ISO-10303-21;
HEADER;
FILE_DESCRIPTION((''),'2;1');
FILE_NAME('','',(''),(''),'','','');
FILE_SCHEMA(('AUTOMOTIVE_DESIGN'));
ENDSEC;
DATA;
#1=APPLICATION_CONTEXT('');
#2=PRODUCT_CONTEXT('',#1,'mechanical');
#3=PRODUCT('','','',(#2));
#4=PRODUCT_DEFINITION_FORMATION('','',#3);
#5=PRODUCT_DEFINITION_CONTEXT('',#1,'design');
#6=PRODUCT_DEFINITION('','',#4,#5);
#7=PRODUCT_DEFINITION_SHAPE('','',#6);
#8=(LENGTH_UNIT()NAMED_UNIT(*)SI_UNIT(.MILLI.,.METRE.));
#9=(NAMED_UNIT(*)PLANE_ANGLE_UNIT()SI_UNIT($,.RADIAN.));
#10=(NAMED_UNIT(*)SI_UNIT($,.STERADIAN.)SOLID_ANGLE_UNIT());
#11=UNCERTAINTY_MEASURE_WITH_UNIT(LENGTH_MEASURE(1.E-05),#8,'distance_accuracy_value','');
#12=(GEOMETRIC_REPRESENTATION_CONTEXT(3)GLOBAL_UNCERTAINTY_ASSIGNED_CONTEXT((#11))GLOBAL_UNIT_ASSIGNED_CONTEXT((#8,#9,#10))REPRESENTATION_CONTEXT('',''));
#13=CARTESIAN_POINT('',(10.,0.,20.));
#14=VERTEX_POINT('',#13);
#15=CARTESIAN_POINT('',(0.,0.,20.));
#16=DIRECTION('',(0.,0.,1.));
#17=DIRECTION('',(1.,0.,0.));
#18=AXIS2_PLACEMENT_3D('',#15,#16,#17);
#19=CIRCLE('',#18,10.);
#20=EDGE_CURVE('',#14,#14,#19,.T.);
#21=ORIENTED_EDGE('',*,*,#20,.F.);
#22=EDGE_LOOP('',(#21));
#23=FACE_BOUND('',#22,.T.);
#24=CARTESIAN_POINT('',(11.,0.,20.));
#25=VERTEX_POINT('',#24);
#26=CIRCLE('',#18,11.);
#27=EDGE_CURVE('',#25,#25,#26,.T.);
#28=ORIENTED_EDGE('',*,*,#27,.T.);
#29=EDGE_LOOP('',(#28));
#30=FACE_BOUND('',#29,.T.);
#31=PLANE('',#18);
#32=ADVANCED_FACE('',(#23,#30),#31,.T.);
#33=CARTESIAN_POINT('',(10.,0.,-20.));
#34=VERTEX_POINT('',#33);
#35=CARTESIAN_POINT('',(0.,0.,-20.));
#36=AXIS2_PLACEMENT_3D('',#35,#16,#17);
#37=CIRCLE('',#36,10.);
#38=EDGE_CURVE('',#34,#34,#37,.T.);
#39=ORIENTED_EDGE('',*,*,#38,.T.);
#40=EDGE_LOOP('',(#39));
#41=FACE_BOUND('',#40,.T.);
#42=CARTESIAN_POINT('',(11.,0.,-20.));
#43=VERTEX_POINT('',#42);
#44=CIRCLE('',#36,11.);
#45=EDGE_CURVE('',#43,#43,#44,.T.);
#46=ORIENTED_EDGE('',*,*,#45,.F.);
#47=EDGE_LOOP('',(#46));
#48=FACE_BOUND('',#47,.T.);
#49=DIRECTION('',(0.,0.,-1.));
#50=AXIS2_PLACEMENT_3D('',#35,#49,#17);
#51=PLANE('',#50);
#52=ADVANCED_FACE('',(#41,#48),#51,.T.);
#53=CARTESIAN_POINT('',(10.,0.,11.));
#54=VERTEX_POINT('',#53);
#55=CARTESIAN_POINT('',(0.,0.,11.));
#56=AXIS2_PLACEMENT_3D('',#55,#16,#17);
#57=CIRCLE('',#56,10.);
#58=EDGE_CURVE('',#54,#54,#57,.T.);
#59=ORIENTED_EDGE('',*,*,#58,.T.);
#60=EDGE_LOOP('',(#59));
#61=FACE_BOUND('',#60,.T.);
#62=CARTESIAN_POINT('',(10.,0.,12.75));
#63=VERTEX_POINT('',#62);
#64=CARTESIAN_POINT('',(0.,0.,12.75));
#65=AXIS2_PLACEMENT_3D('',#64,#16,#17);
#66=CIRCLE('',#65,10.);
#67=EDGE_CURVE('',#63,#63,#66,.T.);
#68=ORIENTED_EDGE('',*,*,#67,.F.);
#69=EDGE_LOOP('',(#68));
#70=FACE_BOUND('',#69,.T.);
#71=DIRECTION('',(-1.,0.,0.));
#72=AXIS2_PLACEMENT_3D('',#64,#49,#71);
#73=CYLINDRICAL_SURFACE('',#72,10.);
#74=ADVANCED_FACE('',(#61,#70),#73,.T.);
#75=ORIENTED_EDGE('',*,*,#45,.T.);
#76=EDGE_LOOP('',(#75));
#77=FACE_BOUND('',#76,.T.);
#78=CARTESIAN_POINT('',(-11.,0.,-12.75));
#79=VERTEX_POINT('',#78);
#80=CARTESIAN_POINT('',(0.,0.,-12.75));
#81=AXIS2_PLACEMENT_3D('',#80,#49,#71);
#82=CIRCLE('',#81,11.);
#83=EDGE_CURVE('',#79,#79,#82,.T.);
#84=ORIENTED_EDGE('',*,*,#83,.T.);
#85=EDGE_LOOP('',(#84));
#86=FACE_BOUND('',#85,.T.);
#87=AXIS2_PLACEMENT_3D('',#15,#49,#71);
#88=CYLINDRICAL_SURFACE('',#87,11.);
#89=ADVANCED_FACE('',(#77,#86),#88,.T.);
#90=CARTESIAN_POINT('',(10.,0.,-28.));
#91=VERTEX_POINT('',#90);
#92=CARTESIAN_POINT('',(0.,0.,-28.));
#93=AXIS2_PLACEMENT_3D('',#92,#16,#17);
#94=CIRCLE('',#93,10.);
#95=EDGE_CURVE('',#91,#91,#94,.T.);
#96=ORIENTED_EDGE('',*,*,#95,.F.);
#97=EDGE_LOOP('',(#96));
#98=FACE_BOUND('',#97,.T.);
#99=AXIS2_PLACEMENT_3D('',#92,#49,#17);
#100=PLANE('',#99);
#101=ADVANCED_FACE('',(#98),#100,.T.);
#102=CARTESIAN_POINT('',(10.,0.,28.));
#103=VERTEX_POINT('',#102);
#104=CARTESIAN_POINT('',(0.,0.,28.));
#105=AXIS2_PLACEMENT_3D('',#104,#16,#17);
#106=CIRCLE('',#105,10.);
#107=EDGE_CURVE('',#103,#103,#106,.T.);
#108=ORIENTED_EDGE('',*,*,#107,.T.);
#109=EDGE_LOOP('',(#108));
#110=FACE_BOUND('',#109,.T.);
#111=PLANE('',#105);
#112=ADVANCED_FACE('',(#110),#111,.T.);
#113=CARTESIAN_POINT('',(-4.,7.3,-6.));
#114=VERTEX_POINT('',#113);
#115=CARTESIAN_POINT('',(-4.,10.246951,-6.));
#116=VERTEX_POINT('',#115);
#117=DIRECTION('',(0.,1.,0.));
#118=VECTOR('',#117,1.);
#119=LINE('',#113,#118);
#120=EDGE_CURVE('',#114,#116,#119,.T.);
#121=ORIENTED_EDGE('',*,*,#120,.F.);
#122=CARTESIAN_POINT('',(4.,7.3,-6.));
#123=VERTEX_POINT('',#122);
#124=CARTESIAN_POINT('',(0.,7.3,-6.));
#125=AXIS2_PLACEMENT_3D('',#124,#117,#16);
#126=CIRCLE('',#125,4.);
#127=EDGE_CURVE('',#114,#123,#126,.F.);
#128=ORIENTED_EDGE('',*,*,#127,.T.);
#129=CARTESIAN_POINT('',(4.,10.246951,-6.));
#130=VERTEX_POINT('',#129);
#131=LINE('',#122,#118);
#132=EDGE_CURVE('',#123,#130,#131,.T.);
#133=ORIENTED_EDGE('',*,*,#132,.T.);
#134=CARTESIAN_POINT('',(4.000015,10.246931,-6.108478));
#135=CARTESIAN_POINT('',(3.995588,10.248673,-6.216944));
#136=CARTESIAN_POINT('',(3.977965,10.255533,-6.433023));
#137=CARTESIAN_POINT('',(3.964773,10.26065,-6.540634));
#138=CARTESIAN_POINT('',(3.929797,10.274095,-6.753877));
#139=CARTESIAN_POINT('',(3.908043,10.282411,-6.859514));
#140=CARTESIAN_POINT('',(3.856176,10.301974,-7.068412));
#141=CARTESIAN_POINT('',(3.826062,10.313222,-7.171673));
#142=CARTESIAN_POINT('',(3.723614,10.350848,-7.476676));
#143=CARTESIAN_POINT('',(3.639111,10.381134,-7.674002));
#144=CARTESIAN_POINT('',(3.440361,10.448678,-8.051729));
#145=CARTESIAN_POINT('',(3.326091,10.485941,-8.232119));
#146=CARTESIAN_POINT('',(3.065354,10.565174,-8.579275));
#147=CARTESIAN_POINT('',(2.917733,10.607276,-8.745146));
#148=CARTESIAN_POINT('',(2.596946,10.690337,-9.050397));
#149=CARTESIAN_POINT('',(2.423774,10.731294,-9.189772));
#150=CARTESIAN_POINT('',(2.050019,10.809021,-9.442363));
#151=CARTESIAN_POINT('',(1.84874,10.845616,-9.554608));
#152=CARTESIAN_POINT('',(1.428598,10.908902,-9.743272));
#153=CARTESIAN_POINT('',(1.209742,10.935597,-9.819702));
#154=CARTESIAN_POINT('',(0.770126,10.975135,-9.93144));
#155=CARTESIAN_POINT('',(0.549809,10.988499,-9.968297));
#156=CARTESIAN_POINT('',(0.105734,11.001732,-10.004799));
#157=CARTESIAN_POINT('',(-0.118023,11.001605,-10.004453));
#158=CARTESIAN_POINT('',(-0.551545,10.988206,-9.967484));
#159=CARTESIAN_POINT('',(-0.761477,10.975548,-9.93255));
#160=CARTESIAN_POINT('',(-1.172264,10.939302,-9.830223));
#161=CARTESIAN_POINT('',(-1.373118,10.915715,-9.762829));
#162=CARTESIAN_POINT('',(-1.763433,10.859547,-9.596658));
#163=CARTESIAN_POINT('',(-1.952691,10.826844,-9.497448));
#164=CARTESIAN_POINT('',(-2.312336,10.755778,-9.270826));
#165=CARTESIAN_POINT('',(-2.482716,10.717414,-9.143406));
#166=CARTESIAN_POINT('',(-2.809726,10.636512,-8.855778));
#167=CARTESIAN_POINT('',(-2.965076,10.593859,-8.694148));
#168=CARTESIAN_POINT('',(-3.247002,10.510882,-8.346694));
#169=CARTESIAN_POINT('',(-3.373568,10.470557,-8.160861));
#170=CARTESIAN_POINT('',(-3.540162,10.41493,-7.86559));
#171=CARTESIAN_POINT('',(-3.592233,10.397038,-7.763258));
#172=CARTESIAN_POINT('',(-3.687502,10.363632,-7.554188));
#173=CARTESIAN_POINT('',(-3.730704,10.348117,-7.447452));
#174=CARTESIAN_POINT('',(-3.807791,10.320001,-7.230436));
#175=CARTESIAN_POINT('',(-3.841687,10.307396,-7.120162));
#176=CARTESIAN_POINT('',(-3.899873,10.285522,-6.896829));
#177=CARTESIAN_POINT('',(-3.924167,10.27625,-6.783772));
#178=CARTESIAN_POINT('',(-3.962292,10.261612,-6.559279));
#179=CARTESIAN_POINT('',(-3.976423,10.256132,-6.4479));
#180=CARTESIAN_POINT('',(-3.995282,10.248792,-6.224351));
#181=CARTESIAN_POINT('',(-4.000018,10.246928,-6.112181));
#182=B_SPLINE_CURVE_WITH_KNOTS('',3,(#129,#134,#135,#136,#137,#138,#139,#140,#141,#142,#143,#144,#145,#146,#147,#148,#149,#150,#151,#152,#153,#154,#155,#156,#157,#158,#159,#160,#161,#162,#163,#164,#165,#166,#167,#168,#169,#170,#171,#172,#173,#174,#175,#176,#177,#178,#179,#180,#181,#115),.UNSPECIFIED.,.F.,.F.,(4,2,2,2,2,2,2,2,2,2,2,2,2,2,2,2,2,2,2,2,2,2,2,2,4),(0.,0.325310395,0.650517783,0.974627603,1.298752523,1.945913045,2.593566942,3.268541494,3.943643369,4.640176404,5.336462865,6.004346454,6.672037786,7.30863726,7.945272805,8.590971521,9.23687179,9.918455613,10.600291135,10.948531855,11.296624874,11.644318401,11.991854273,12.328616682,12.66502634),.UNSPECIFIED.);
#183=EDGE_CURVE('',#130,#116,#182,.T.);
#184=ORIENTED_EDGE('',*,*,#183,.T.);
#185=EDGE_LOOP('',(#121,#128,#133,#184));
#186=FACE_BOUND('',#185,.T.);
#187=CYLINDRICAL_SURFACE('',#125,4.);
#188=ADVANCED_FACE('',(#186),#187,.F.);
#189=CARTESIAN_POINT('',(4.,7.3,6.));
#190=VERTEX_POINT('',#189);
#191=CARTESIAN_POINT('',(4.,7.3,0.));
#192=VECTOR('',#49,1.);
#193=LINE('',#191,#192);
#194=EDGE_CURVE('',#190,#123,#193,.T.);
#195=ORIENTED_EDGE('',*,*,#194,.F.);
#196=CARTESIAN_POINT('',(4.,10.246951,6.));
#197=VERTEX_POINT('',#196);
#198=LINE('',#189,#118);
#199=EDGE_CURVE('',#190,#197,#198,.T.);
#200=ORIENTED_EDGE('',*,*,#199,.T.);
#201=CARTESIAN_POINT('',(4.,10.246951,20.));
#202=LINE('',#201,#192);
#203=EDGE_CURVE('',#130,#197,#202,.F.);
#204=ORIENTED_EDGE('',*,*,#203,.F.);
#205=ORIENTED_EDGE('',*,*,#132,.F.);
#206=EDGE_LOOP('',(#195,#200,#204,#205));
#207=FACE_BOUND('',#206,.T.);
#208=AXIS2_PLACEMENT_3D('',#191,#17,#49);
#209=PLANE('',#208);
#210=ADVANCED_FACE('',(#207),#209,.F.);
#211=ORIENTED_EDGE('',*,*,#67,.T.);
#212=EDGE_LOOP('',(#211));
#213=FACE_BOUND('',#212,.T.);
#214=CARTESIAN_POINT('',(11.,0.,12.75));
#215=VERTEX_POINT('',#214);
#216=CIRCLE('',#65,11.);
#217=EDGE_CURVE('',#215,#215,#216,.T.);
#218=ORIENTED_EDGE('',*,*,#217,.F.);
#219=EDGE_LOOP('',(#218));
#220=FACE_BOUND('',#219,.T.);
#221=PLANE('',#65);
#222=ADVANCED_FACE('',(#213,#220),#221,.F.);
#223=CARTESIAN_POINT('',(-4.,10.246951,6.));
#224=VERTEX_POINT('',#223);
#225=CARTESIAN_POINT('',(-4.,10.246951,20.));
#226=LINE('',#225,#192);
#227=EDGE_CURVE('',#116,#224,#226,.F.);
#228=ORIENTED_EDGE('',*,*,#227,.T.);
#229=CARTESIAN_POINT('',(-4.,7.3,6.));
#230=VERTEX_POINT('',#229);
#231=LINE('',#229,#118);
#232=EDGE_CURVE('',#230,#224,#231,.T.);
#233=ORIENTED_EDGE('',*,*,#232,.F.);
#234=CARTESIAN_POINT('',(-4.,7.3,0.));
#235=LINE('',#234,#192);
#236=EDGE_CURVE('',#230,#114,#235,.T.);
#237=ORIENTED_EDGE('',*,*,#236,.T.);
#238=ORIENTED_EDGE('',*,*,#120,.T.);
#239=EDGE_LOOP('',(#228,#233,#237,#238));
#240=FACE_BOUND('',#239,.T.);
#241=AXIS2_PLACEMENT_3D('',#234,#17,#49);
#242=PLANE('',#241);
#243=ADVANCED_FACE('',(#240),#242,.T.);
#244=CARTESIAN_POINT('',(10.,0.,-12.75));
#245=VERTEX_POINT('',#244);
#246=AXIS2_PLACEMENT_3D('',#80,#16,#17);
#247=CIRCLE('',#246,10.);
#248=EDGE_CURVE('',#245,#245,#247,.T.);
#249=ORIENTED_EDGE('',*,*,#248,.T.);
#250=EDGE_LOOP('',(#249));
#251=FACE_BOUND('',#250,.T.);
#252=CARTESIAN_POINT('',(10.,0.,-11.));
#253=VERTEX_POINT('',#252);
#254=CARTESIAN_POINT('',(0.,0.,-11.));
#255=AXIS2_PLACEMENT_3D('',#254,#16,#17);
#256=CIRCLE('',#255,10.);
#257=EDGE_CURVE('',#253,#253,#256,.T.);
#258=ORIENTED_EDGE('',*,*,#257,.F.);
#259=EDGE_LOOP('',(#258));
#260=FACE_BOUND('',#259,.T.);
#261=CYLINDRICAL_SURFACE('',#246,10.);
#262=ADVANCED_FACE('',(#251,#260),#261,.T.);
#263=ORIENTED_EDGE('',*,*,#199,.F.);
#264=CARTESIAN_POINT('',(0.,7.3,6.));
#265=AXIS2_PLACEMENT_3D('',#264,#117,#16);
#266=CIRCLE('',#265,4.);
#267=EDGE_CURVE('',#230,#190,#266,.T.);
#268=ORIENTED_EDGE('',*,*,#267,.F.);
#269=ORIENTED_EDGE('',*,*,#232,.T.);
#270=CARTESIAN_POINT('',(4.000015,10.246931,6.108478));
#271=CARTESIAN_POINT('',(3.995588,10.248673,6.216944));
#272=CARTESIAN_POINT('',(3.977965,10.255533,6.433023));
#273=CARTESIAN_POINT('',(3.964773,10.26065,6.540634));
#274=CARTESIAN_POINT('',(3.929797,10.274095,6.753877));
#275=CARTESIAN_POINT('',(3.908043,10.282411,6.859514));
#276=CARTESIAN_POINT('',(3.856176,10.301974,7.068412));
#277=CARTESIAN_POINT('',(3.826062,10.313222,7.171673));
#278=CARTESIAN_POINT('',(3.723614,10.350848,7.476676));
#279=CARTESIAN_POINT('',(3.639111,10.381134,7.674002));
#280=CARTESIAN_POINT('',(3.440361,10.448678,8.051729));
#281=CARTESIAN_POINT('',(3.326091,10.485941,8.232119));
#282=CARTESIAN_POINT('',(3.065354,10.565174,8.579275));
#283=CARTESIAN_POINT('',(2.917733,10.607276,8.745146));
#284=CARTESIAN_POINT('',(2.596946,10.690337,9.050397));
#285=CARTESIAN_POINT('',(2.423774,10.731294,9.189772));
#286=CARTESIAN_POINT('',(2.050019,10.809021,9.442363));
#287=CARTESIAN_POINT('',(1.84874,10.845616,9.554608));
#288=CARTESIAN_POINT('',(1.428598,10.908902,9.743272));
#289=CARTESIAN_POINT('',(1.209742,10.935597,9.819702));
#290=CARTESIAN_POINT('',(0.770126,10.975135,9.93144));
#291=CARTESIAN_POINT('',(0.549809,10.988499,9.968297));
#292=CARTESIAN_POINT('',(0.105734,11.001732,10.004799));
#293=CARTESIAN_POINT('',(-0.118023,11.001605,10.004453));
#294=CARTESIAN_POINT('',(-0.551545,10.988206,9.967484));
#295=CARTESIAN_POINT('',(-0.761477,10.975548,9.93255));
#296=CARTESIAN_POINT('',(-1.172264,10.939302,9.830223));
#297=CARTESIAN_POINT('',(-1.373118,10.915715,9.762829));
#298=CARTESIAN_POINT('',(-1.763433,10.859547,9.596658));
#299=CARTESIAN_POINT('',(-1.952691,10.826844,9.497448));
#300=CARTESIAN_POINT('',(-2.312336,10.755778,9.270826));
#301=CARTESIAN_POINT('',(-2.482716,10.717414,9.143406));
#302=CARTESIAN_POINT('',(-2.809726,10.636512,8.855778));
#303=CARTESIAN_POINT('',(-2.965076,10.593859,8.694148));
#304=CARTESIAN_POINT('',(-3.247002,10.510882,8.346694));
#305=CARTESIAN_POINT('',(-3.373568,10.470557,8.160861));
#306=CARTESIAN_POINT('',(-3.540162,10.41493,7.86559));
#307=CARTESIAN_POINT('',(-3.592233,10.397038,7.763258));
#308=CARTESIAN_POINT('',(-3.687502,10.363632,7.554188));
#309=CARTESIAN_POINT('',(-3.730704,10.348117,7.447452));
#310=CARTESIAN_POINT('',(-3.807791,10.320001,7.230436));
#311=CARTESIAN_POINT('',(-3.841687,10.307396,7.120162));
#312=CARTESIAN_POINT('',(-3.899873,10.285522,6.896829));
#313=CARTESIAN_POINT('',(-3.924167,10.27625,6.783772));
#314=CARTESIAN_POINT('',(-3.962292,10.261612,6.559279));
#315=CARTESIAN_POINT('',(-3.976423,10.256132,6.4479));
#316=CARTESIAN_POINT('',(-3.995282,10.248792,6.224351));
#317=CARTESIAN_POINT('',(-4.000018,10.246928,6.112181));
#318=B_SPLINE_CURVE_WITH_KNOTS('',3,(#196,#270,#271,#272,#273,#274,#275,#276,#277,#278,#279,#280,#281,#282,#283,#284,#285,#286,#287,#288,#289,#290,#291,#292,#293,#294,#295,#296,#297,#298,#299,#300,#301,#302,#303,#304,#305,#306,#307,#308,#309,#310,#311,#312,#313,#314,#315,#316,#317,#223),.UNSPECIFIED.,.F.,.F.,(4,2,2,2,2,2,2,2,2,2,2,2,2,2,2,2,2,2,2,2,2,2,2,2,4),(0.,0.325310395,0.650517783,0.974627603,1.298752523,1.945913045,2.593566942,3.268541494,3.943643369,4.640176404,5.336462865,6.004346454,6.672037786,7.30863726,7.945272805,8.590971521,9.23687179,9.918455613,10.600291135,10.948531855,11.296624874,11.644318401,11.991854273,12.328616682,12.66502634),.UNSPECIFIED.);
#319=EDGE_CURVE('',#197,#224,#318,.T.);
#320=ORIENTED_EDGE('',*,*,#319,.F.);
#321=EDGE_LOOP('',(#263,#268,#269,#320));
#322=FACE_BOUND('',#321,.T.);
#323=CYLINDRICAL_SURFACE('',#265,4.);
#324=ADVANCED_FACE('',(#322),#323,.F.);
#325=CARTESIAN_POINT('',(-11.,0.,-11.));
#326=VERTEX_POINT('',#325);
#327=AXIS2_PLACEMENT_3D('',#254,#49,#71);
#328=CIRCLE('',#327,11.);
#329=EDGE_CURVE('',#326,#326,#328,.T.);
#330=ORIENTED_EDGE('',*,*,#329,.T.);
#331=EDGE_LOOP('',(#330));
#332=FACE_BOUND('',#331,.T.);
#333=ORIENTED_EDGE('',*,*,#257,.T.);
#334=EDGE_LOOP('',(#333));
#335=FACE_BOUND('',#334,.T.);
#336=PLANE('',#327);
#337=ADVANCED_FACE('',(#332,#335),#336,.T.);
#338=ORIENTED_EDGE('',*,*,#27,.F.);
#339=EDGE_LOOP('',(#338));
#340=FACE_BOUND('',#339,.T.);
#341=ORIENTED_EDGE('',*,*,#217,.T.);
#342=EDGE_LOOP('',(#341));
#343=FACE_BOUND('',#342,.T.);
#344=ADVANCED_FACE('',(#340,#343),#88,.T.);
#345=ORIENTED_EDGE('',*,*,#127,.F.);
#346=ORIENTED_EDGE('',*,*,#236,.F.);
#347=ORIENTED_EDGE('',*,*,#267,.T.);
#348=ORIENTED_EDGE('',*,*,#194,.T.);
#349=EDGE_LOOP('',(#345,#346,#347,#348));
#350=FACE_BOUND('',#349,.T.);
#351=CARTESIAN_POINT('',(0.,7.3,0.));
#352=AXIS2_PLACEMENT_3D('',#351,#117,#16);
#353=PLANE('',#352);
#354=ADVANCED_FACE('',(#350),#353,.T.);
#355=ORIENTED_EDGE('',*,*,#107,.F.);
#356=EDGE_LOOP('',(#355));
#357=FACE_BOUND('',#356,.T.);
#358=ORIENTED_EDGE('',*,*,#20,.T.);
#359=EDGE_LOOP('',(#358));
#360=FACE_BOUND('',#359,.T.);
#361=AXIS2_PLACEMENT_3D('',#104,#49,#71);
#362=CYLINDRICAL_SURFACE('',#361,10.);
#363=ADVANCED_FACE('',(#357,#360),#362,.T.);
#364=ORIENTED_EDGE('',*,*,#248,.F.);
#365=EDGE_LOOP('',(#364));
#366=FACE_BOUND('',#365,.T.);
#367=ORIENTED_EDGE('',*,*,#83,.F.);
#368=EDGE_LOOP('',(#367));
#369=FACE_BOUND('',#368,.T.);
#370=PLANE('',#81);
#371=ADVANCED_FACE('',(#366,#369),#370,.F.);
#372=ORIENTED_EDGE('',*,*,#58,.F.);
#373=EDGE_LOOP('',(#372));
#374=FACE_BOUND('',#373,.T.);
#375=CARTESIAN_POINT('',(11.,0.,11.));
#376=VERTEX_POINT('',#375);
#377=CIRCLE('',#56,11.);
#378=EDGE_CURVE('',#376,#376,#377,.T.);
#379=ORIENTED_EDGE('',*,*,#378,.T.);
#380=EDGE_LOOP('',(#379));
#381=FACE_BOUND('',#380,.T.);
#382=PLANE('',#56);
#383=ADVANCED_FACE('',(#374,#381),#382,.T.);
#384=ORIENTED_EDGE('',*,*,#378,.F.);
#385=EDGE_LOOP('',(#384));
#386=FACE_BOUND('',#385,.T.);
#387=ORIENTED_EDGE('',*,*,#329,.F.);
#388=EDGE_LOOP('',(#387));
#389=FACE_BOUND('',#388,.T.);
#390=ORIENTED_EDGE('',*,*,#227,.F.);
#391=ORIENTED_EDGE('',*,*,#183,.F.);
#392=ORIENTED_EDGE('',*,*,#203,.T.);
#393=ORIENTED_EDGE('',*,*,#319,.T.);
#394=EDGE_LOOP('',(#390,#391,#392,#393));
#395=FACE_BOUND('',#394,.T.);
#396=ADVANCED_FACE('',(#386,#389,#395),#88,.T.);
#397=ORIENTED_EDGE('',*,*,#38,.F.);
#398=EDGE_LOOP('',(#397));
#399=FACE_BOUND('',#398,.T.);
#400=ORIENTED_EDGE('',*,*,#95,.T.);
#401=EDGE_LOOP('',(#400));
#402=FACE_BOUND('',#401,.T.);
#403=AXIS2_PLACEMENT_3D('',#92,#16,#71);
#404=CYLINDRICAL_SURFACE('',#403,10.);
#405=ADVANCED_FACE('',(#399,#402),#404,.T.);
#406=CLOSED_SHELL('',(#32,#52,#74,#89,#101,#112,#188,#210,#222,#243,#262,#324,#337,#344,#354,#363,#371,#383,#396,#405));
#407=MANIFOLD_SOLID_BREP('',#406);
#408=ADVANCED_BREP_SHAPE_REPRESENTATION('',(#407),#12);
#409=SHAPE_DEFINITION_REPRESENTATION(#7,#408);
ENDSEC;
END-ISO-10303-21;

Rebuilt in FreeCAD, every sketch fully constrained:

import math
import FreeCAD as App
import Part
import Sketcher
Q = App.Units.Quantity

doc = App.newDocument("Part")
body = doc.addObject("PartDesign::Body", "Body")

# Sketch on XY plane
sketch1 = body.newObject("Sketcher::SketchObject", "Sketch")
sketch1.AttachmentSupport = (doc.getObject("XY_Plane"), [""])
sketch1.MapMode = "FlatFace"
sketch1.addGeometry(Part.Circle(App.Vector(0, 0, 0), App.Vector(0, 0, 1), 11), False)
sketch1.addConstraint(Sketcher.Constraint("Coincident", 0, 3, -1, 1))
sketch1.addConstraint(Sketcher.Constraint("Diameter", 0, Q("22 mm")))
pad1 = body.newObject("PartDesign::Pad", "Pad")
pad1.Profile = sketch1
pad1.Length = 20

# Sketch on XY plane
sketch2 = body.newObject("Sketcher::SketchObject", "Sketch001")
sketch2.AttachmentSupport = (doc.getObject("XY_Plane"), [""])
sketch2.MapMode = "FlatFace"
sketch2.AttachmentOffset = App.Placement(App.Vector(0, 0, 20), App.Rotation())
sketch2.addGeometry(Part.Circle(App.Vector(0, 0, 0), App.Vector(0, 0, 1), 10), False)
sketch2.addConstraint(Sketcher.Constraint("Coincident", 0, 3, -1, 1))
sketch2.addConstraint(Sketcher.Constraint("Diameter", 0, Q("20 mm")))
pad2 = body.newObject("PartDesign::Pad", "Pad001")
pad2.Profile = sketch2
pad2.Length = 8
body2 = doc.addObject("PartDesign::Body", "Body001")
doc.recompute()

body2.BaseFeature = body
doc.recompute()

mirroring = doc.addObject("Part::Mirroring", "Mirroring")
mirroring.Source = body
mirroring.Base = App.Vector(0, 0, 0)
mirroring.Normal = App.Vector(0, 0, 1)
body3 = doc.addObject("PartDesign::Body", "Body002")
body3.BaseFeature = mirroring
boolean = body2.newObject("PartDesign::Boolean", "Boolean")
boolean.Type = "Fuse"
boolean.addObjects([body3])
doc.recompute()

# Sketch on XZ plane
sketch3 = body2.newObject("Sketcher::SketchObject", "Sketch002")
sketch3.AttachmentSupport = (doc.getObject("XZ_Plane001"), [""])
sketch3.MapMode = "FlatFace"
sketch3.AttachmentOffset = App.Placement(App.Vector(0, 0, -11), App.Rotation())
sketch3.addGeometry(Part.LineSegment(App.Vector(-4, -6, 0), App.Vector(-4, 6, 0)), False)
sketch3.addGeometry(Part.ArcOfCircle(Part.Circle(App.Vector(0, 6, 0), App.Vector(0, 0, 1), 4), math.radians(0), math.radians(180)), False)
sketch3.addGeometry(Part.LineSegment(App.Vector(4, 6, 0), App.Vector(4, -6, 0)), False)
sketch3.addGeometry(Part.ArcOfCircle(Part.Circle(App.Vector(0, -6, 0), App.Vector(0, 0, 1), 4), math.radians(180), math.radians(360)), False)
sketch3.addConstraint(Sketcher.Constraint("Tangent", 0, 2, 1, 2))
sketch3.addConstraint(Sketcher.Constraint("Tangent", 1, 1, 2, 1))
sketch3.addConstraint(Sketcher.Constraint("Tangent", 2, 2, 3, 2))
sketch3.addConstraint(Sketcher.Constraint("Tangent", 3, 1, 0, 1))
sketch3.addConstraint(Sketcher.Constraint("Vertical", 0))
sketch3.addConstraint(Sketcher.Constraint("Vertical", 2))
sketch3.addConstraint(Sketcher.Constraint("Symmetric", 1, 3, 3, 3, -1, 1))
sketch3.addConstraint(Sketcher.Constraint("Radius", 1, Q("4 mm")))
sketch3.addConstraint(Sketcher.Constraint("DistanceY", 0, 1, 0, 2, Q("12 mm")))
pocket1 = body2.newObject("PartDesign::Pocket", "Pocket")
pocket1.Profile = sketch3
pocket1.Length = 3.7
pocket1.Reversed = True

# Sketch on XY plane
sketch4 = body2.newObject("Sketcher::SketchObject", "Sketch003")
sketch4.AttachmentSupport = (doc.getObject("XY_Plane001"), [""])
sketch4.MapMode = "FlatFace"
sketch4.AttachmentOffset = App.Placement(App.Vector(0, 0, 11), App.Rotation())
sketch4.addGeometry(Part.LineSegment(App.Vector(-18, 18, 0), App.Vector(-18, -18, 0)), False)
sketch4.addGeometry(Part.LineSegment(App.Vector(-18, -18, 0), App.Vector(18, -18, 0)), False)
sketch4.addGeometry(Part.LineSegment(App.Vector(18, -18, 0), App.Vector(18, 18, 0)), False)
sketch4.addGeometry(Part.LineSegment(App.Vector(18, 18, 0), App.Vector(-18, 18, 0)), False)
sketch4.addGeometry(Part.Circle(App.Vector(0, 0, 0), App.Vector(0, 0, 1), 10), False)
sketch4.addConstraint(Sketcher.Constraint("Coincident", 0, 2, 1, 1))
sketch4.addConstraint(Sketcher.Constraint("Coincident", 1, 2, 2, 1))
sketch4.addConstraint(Sketcher.Constraint("Coincident", 2, 2, 3, 1))
sketch4.addConstraint(Sketcher.Constraint("Coincident", 3, 2, 0, 1))
sketch4.addConstraint(Sketcher.Constraint("Vertical", 0))
sketch4.addConstraint(Sketcher.Constraint("Horizontal", 1))
sketch4.addConstraint(Sketcher.Constraint("Vertical", 2))
sketch4.addConstraint(Sketcher.Constraint("Horizontal", 3))
sketch4.addConstraint(Sketcher.Constraint("Coincident", 4, 3, -1, 1))
sketch4.addConstraint(Sketcher.Constraint("Symmetric", 0, 2, 2, 2, -1, 1))
sketch4.addConstraint(Sketcher.Constraint("Equal", 3, 0))
sketch4.addConstraint(Sketcher.Constraint("Diameter", 4, Q("20 mm")))
sketch4.addConstraint(Sketcher.Constraint("DistanceX", 1, 1, 1, 2, Q("36.812 mm")))
pocket2 = body2.newObject("PartDesign::Pocket", "Pocket001")
pocket2.Profile = sketch4
pocket2.Length = 1.75
pocket2.Reversed = True
doc.recompute()

mirrored = body2.newObject("PartDesign::Mirrored", "Mirrored")
mirrored.Originals = [pocket2]
mirrored.MirrorPlane = (doc.getObject("XY_Plane001"), [""])
body2.Tip = mirrored
mirroring.Visibility = False

doc.recompute()
